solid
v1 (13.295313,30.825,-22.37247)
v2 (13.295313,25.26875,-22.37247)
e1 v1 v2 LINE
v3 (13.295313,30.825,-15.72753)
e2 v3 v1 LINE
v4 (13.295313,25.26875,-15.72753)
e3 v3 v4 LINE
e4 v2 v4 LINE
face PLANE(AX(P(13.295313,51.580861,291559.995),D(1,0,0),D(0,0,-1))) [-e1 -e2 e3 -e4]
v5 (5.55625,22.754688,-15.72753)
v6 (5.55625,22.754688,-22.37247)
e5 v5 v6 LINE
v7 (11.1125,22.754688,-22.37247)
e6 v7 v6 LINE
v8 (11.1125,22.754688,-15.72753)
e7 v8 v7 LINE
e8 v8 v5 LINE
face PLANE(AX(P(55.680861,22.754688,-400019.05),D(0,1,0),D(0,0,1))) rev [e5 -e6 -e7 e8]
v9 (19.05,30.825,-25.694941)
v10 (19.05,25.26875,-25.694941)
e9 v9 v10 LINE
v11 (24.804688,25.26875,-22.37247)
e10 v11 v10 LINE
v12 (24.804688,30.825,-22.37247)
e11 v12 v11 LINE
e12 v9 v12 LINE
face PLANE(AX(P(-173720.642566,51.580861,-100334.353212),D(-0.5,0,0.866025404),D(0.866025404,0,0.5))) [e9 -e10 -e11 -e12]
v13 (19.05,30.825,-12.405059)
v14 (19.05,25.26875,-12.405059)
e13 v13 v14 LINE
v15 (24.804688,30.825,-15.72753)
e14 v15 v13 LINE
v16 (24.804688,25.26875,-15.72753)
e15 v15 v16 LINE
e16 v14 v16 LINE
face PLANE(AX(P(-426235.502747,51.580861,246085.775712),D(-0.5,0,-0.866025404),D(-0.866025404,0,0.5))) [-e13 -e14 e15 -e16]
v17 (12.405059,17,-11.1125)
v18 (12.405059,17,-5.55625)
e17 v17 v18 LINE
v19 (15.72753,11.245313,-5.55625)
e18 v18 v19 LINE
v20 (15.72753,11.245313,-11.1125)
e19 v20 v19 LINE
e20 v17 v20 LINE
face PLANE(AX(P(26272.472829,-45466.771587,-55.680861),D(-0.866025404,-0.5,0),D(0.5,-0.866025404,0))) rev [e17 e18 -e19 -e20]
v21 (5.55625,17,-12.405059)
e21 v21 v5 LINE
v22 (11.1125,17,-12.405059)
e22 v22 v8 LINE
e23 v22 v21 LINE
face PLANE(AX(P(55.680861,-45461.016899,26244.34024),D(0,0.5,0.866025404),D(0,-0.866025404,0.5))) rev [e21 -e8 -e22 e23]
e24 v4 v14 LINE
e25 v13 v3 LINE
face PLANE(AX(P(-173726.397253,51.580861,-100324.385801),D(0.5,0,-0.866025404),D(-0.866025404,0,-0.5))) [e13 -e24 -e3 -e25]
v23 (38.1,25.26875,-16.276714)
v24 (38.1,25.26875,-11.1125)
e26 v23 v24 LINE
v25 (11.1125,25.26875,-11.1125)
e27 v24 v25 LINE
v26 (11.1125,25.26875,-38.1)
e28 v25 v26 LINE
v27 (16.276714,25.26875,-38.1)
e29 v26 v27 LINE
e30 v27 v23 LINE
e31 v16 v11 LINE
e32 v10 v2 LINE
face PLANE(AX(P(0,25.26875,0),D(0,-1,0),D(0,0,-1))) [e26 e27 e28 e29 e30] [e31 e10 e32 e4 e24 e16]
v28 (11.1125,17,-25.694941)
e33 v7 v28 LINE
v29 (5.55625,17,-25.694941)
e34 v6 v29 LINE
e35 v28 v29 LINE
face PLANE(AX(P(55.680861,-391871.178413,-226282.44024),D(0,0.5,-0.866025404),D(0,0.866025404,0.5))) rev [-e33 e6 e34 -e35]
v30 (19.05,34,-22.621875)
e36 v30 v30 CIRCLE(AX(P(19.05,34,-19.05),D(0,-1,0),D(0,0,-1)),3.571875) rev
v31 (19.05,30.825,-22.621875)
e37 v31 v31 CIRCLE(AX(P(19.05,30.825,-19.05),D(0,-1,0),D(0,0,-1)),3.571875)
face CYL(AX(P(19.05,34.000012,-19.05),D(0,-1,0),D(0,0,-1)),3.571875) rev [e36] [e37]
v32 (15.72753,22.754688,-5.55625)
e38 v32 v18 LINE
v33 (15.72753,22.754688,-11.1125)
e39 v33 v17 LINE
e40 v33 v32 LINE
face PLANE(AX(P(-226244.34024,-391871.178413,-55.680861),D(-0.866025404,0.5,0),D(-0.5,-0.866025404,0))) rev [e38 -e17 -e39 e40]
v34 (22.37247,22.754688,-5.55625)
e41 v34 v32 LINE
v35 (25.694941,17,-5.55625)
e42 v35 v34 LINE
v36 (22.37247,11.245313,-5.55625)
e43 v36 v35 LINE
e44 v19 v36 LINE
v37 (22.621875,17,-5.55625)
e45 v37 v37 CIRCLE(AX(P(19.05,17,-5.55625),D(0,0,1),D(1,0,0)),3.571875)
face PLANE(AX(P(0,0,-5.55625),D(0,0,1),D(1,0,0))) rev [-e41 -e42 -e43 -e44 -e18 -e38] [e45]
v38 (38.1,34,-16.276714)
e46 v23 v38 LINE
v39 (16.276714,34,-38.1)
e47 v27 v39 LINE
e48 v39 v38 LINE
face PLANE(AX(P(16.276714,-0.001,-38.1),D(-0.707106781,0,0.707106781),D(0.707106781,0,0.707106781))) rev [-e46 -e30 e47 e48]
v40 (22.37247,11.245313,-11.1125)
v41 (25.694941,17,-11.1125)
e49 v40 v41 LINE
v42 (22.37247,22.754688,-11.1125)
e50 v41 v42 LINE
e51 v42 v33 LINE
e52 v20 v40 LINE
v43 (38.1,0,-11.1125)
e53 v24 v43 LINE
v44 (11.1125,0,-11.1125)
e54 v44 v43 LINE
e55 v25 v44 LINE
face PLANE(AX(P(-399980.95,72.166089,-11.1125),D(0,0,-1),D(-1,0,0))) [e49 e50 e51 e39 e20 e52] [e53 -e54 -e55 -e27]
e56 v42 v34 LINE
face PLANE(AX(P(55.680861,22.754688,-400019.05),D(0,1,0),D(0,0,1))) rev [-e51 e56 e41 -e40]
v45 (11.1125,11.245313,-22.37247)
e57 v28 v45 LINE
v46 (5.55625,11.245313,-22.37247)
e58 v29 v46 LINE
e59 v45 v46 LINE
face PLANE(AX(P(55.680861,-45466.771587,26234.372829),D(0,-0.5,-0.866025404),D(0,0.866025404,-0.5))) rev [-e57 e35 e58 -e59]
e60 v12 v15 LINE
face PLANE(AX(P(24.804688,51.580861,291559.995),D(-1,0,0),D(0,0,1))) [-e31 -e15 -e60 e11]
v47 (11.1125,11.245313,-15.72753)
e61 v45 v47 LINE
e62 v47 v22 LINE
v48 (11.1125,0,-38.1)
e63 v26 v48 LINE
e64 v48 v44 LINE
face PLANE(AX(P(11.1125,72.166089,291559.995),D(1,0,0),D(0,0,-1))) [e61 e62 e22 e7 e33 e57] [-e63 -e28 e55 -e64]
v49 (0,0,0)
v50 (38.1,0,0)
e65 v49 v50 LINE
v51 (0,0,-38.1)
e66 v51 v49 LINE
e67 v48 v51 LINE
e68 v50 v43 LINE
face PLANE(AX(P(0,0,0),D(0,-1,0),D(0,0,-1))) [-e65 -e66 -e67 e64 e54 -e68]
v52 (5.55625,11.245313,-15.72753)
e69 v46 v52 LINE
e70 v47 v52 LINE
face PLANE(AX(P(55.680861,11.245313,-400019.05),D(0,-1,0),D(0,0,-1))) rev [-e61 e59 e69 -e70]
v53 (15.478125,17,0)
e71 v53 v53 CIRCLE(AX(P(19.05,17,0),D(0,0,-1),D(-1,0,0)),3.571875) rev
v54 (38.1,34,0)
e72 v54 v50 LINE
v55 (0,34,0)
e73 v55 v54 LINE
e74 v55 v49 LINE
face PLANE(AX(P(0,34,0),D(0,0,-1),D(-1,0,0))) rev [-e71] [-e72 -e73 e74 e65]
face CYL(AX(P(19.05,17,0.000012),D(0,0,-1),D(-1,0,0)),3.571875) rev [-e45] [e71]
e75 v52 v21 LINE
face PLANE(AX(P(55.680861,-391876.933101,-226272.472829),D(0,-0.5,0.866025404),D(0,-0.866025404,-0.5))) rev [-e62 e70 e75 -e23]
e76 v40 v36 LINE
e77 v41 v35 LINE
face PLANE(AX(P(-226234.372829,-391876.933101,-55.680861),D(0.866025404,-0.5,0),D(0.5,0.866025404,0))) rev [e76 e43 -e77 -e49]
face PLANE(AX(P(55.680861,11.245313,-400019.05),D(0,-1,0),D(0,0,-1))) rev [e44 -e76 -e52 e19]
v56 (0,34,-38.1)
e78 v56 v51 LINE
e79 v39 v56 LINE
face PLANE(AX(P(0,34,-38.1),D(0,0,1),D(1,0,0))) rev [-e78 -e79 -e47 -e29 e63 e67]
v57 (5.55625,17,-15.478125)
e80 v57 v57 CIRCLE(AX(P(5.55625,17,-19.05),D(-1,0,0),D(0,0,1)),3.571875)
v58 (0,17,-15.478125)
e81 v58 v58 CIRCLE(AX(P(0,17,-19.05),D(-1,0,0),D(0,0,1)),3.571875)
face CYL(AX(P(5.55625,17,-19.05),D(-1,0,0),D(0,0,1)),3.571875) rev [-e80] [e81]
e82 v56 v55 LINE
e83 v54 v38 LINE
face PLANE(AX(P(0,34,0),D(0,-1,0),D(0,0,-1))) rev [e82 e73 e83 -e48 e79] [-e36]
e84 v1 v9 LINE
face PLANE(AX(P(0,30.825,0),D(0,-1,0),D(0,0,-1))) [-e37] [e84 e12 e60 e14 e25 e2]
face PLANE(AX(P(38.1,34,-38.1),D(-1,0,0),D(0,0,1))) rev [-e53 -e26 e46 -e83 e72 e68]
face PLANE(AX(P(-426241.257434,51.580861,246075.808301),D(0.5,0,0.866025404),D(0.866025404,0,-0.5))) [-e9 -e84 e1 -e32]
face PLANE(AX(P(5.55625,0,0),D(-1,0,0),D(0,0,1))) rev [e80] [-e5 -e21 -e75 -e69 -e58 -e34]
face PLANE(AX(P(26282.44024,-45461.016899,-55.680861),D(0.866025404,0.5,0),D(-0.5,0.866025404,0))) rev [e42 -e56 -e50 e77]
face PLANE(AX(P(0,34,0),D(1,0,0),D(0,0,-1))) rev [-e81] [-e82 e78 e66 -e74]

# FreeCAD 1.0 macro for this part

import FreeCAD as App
import Part
import Sketcher

V = App.Vector
Q = App.Units.Quantity


def add_polygon(sketch, points):
    """Adds a closed chain of lines whose ends are joined by coincident constraints."""
    first, n = sketch.GeometryCount, len(points)
    for a, b in zip(points, points[1:] + points[:1]):
        sketch.addGeometry(Part.LineSegment(App.Vector(*a, 0), App.Vector(*b, 0)), False)
    for i in range(n):
        sketch.addConstraint(Sketcher.Constraint("Coincident", first + i, 2, first + (i + 1) % n, 1))

doc = App.newDocument("Part")
body = doc.addObject("PartDesign::Body", "Body")

# Sketch on XZ plane
sketch1 = body.newObject("Sketcher::SketchObject", "Sketch")
sketch1.AttachmentSupport = (doc.getObject("XZ_Plane"), [""])
sketch1.MapMode = "FlatFace"
add_polygon(sketch1, [(0, -38), (0, 0), (38, 0), (38, -38)])  # lines 0-3
sketch1.addConstraint([
    Sketcher.Constraint("Vertical", 0),
    Sketcher.Constraint("Horizontal", 1),
    Sketcher.Constraint("Vertical", 2),
    Sketcher.Constraint("Horizontal", 3),
    Sketcher.Constraint("Coincident", 0, 2, -1, 1),
    Sketcher.Constraint("Equal", 3, 0),
    Sketcher.Constraint("DistanceX", 1, 1, 1, 2, Q("1.5 in")),
])
pad1 = body.newObject("PartDesign::Pad", "Pad")
pad1.Profile = sketch1
pad1.Length = 34
pad1.Reversed = True

# Sketch on XY plane
sketch2 = body.newObject("Sketcher::SketchObject", "Sketch001")
sketch2.AttachmentSupport = (doc.getObject("XY_Plane"), [""])
sketch2.MapMode = "FlatFace"
sketch2.addGeometry(Part.Circle(V(19.1, 17, 0), V(0, 0, 1), 3.6), False)
sketch2.addConstraint([
    Sketcher.Constraint("Diameter", 0, Q("0.28125 in")),
    Sketcher.Constraint("DistanceX", -1, 1, 0, 3, Q("0.75 in")),
    Sketcher.Constraint("DistanceY", -1, 1, 0, 3, 17.0),
])
pocket1 = body.newObject("PartDesign::Pocket", "Pocket")
pocket1.Profile = sketch2
pocket1.Type = "TwoLengths"
pocket1.Length = 1
pocket1.Length2 = Q("0.21875 in")
pocket1.Reversed = True

# Sketch on YZ plane
sketch3 = body.newObject("Sketcher::SketchObject", "Sketch002")
sketch3.AttachmentSupport = (doc.getObject("YZ_Plane"), [""])
sketch3.MapMode = "FlatFace"
sketch3.addGeometry(Part.Circle(V(17, -19.1, 0), V(0, 0, 1), 3.6), False)
sketch3.addConstraint([
    Sketcher.Constraint("Diameter", 0, Q("0.28125 in")),
    Sketcher.Constraint("DistanceY", 0, 3, -1, 1, Q("0.75 in")),
    Sketcher.Constraint("DistanceX", -1, 1, 0, 3, 17.0),
])
pocket2 = body.newObject("PartDesign::Pocket", "Pocket001")
pocket2.Profile = sketch3
pocket2.Length = Q("0.21875 in")
pocket2.Reversed = True

# Sketch on XZ plane
sketch4 = body.newObject("Sketcher::SketchObject", "Sketch003")
sketch4.AttachmentSupport = (doc.getObject("XZ_Plane"), [""])
sketch4.MapMode = "FlatFace"
sketch4.AttachmentOffset = App.Placement(V(0, 0, -34), App.Rotation())
sketch4.addGeometry(Part.Circle(V(19.1, -19.1, 0), V(0, 0, 1), 3.6), False)
sketch4.addConstraint([
    Sketcher.Constraint("Diameter", 0, Q("0.28125 in")),
    Sketcher.Constraint("DistanceX", -1, 1, 0, 3, Q("0.75 in")),
    Sketcher.Constraint("DistanceY", 0, 3, -1, 1, Q("0.75 in")),
])
pocket3 = body.newObject("PartDesign::Pocket", "Pocket002")
pocket3.Profile = sketch4
pocket3.Type = "TwoLengths"
pocket3.Length = 1
pocket3.Length2 = 10

# Sketch on YZ plane
sketch5 = body.newObject("Sketcher::SketchObject", "Sketch004")
sketch5.AttachmentSupport = (doc.getObject("YZ_Plane"), [""])
sketch5.MapMode = "FlatFace"
sketch5.AttachmentOffset = App.Placement(V(0, 0, 0.21875 * 25.4), App.Rotation())
add_polygon(sketch5, [(23, -22), (17, -26), (11, -22), (11, -16), (17, -12), (23, -16)])  # lines 0-5
sketch5.addConstraint([
    Sketcher.Constraint("Vertical", 2),
    Sketcher.Constraint("Vertical", 5),
    Sketcher.Constraint("Parallel", 0, 3),
    Sketcher.Constraint("Parallel", 1, 4),
    Sketcher.Constraint("Horizontal", 2, 2, 4, 2),
    Sketcher.Constraint("Horizontal", 1, 2, 5, 2),
    Sketcher.Constraint("Vertical", 0, 2, 3, 2),
    Sketcher.Constraint("Angle", 0, Q("-150 deg")),
    Sketcher.Constraint("DistanceX", 2, 2, 4, 2, Q("0.453125 in")),
    Sketcher.Constraint("DistanceY", 2, 1, 2, 2, 6.644941),
    Sketcher.Constraint("DistanceX", -1, 1, 0, 2, 17.0),
    Sketcher.Constraint("DistanceY", 0, 2, -1, 1, 25.694941),
])
pocket4 = body.newObject("PartDesign::Pocket", "Pocket003")
pocket4.Profile = sketch5
pocket4.Length = Q("1.28125 in")
pocket4.Reversed = True

# Sketch on XY plane
sketch6 = body.newObject("Sketcher::SketchObject", "Sketch005")
sketch6.AttachmentSupport = (doc.getObject("XY_Plane"), [""])
sketch6.MapMode = "FlatFace"
sketch6.AttachmentOffset = App.Placement(V(0, 0, -0.21875 * 25.4), App.Rotation())
add_polygon(sketch6, [(16, 23), (12, 17), (16, 11), (22, 11), (26, 17), (22, 23)])  # lines 0-5
sketch6.addConstraint([
    Sketcher.Constraint("Horizontal", 2),
    Sketcher.Constraint("Horizontal", 5),
    Sketcher.Constraint("Parallel", 0, 3),
    Sketcher.Constraint("Parallel", 1, 4),
    Sketcher.Constraint("Horizontal", 0, 2, 3, 2),
    Sketcher.Constraint("Vertical", 2, 2, 4, 2),
    Sketcher.Constraint("Vertical", 1, 2, 5, 2),
    Sketcher.Constraint("Angle", 0, Q("-120 deg")),
    Sketcher.Constraint("DistanceY", 2, 2, 4, 2, Q("0.453125 in")),
    Sketcher.Constraint("DistanceX", 2, 1, 2, 2, 6.644941),
    Sketcher.Constraint("DistanceY", -1, 1, 0, 2, 17.0),
    Sketcher.Constraint("DistanceX", -1, 1, 0, 2, 12.405059),
])
pocket5 = body.newObject("PartDesign::Pocket", "Pocket004")
pocket5.Profile = sketch6
pocket5.Length = Q("1.28125 in")

# Sketch on XZ plane
sketch7 = body.newObject("Sketcher::SketchObject", "Sketch006")
sketch7.AttachmentSupport = (doc.getObject("XZ_Plane"), [""])
sketch7.MapMode = "FlatFace"
sketch7.AttachmentOffset = App.Placement(V(0, 0, -16.5375), App.Rotation())
add_polygon(sketch7, [(11, -38), (11, -11), (38, -11), (38, -38)])  # lines 0-3
sketch7.addConstraint([
    Sketcher.Constraint("Vertical", 0),
    Sketcher.Constraint("Horizontal", 1),
    Sketcher.Constraint("Vertical", 2),
    Sketcher.Constraint("Horizontal", 3),
    Sketcher.Constraint("Equal", 3, 0),
    Sketcher.Constraint("DistanceX", -1, 1, 1, 2, Q("1.5 in")),
    Sketcher.Constraint("DistanceY", 2, 2, -1, 1, Q("1.5 in")),
    Sketcher.Constraint("DistanceX", 1, 1, 1, 2, Q("1.0625 in")),
])
pocket6 = body.newObject("PartDesign::Pocket", "Pocket005")
pocket6.Profile = sketch7
pocket6.Type = "TwoLengths"
pocket6.Length = Q("0.34375 in")
pocket6.Length2 = 22.754687

# Sketch on XZ plane
sketch8 = body.newObject("Sketcher::SketchObject", "Sketch007")
sketch8.AttachmentSupport = (doc.getObject("XZ_Plane"), [""])
sketch8.MapMode = "FlatFace"
sketch8.AttachmentOffset = App.Placement(V(0, 0, -17), App.Rotation())
add_polygon(sketch8, [(25, -22), (19, -26), (13, -22), (13, -16), (19, -12), (25, -16)])  # lines 0-5
sketch8.addConstraint([
    Sketcher.Constraint("Vertical", 2),
    Sketcher.Constraint("Vertical", 5),
    Sketcher.Constraint("Parallel", 0, 3),
    Sketcher.Constraint("Parallel", 1, 4),
    Sketcher.Constraint("Horizontal", 2, 2, 4, 2),
    Sketcher.Constraint("Horizontal", 1, 2, 5, 2),
    Sketcher.Constraint("Vertical", 0, 2, 3, 2),
    Sketcher.Constraint("Angle", 0, Q("-150 deg")),
    Sketcher.Constraint("DistanceX", -1, 1, 0, 2, Q("0.75 in")),
    Sketcher.Constraint("DistanceX", 2, 2, 4, 2, Q("0.453125 in")),
    Sketcher.Constraint("DistanceY", 2, 1, 2, 2, 6.644941),
    Sketcher.Constraint("DistanceY", 0, 2, -1, 1, 25.694941),
])
pocket7 = body.newObject("PartDesign::Pocket", "Pocket006")
pocket7.Profile = sketch8
pocket7.Length = 13.825

# Sketch on XZ plane
sketch9 = body.newObject("Sketcher::SketchObject", "Sketch008")
sketch9.AttachmentSupport = (doc.getObject("XZ_Plane"), [""])
sketch9.MapMode = "FlatFace"
sketch9.AttachmentOffset = App.Placement(V(0, 0, -34), App.Rotation())
add_polygon(sketch9, [(38, -38), (16, -38), (38, -16)])  # lines 0-2
sketch9.addConstraint([
    Sketcher.Constraint("Horizontal", 0),
    Sketcher.Constraint("Vertical", 2),
    Sketcher.Constraint("Equal", 0, 2),
    Sketcher.Constraint("DistanceY", 0, 2, -1, 1, Q("1.5 in")),
    Sketcher.Constraint("DistanceX", -1, 1, 1, 2, Q("1.5 in")),
    Sketcher.Constraint("DistanceX", 0, 2, 0, 1, 21.823286),
])
pocket8 = body.newObject("PartDesign::Pocket", "Pocket007")
pocket8.Profile = sketch9
pocket8.Type = "UpToFirst"
pocket8.Reversed = True

doc.recompute()
